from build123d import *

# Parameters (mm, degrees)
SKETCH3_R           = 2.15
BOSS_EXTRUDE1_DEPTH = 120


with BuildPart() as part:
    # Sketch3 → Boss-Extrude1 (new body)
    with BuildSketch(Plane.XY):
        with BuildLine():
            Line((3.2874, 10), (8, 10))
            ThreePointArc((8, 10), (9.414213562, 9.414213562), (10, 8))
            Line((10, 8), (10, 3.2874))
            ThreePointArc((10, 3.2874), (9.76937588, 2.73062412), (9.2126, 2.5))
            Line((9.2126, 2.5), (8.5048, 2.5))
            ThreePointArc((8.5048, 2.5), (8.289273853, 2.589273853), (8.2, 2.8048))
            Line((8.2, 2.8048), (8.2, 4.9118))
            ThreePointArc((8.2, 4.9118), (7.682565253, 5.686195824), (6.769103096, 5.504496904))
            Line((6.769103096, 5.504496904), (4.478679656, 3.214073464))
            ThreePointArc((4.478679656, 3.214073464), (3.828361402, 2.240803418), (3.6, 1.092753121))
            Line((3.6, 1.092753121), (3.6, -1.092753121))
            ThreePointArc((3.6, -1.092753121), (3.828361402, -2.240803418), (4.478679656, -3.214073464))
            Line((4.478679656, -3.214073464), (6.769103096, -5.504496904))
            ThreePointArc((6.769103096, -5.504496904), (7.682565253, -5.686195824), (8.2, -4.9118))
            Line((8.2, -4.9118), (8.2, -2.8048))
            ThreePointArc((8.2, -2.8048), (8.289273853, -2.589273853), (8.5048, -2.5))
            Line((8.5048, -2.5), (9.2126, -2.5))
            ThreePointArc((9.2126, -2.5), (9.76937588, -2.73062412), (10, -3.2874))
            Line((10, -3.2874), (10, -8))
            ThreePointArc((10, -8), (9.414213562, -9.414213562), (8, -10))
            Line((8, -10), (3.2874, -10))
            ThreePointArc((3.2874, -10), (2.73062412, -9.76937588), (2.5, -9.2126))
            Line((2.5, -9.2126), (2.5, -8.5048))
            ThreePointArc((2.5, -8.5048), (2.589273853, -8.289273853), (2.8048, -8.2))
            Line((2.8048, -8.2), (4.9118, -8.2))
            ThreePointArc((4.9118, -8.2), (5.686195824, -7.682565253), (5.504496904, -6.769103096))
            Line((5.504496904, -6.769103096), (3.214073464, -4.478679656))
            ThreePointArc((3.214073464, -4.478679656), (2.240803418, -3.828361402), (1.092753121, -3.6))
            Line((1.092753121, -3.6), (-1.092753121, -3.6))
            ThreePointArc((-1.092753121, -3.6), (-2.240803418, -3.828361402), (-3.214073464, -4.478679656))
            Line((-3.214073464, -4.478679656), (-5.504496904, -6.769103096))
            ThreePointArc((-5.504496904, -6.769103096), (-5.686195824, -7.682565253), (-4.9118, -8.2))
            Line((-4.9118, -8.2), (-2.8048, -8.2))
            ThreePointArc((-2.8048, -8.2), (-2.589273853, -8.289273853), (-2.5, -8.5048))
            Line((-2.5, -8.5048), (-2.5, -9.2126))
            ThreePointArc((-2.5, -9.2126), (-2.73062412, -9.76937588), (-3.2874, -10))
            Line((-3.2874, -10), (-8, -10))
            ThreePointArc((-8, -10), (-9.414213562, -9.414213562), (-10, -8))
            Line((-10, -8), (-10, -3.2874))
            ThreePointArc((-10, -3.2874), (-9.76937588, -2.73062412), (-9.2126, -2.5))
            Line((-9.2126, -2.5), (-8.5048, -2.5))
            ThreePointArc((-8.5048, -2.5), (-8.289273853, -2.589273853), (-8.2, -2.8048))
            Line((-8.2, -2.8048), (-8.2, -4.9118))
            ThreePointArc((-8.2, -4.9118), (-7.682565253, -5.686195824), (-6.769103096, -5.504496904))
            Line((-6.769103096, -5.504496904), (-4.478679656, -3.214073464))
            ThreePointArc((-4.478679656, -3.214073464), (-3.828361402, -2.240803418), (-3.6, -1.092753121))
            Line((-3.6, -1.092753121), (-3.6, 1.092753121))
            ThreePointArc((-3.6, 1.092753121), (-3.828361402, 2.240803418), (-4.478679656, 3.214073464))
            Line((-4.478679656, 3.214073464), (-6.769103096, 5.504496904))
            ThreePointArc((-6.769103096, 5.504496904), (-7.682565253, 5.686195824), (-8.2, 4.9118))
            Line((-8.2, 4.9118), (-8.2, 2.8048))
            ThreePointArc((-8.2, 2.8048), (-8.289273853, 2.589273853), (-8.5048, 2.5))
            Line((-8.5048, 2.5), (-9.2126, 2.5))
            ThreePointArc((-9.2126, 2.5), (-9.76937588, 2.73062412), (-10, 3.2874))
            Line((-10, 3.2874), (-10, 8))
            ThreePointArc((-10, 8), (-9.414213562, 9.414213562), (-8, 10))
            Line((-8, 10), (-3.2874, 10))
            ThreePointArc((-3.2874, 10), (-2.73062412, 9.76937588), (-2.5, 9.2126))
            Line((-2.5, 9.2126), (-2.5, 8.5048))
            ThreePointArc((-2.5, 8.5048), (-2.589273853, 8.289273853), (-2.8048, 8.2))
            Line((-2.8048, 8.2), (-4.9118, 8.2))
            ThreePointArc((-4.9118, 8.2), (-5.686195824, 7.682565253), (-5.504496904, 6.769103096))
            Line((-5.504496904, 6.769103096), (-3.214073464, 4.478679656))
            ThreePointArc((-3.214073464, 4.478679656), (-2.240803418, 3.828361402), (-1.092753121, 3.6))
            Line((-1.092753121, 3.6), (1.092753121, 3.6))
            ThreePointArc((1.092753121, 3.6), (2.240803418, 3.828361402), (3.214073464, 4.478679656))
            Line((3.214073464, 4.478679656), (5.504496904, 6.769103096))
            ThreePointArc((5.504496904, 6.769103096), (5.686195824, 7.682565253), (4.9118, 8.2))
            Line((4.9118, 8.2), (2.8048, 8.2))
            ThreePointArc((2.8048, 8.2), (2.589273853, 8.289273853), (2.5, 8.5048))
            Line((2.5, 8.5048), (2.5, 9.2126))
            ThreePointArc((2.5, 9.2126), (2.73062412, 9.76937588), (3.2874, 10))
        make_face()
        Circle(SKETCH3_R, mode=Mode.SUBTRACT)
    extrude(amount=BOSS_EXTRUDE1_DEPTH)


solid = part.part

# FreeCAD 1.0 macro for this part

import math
import FreeCAD as App
import Part
import Sketcher

doc = App.newDocument("Part")
params = doc.addObject("Spreadsheet::Sheet", "Params")
for row, (alias, value) in enumerate([
    ("sketch1_radius", "3 mm"),
    ("sketch1_radius2", "2 mm"),
    ("sketch1_diameter", "4.3 mm"),
    ("pad1_length", "120 mm"),
], start=1):
    params.set(f"A{row}", alias)
    params.set(f"B{row}", "=" + value)
    params.setAlias(f"B{row}", alias)

body = doc.addObject("PartDesign::Body", "Body")

sketch1 = doc.addObject("Sketcher::SketchObject", "Sketch")
body.addObject(sketch1)
sketch1.AttachmentSupport = (doc.XY_Plane, [""])
sketch1.MapMode = "FlatFace"
sketch1.addGeometry(Part.LineSegment(App.Vector(8, 10, 0), App.Vector(3.29, 10, 0)), False)
sketch1.addGeometry(Part.ArcOfCircle(Part.Circle(App.Vector(3.29, 9.21, 0), App.Vector(0, 0, 1), 0.79), math.radians(90), math.radians(180)), False)
sketch1.addGeometry(Part.LineSegment(App.Vector(2.5, 9.21, 0), App.Vector(2.5, 8.5, 0)), False)
sketch1.addGeometry(Part.ArcOfCircle(Part.Circle(App.Vector(2.8, 8.5, 0), App.Vector(0, 0, 1), 0.3), math.radians(180), math.radians(270)), False)
sketch1.addGeometry(Part.LineSegment(App.Vector(2.8, 8.2, 0), App.Vector(4.91, 8.2, 0)), False)
sketch1.addGeometry(Part.ArcOfCircle(Part.Circle(App.Vector(4.91, 7.36, 0), App.Vector(0, 0, 1), 0.84), math.radians(-45), math.radians(90)), False)
sketch1.addGeometry(Part.LineSegment(App.Vector(5.5, 6.77, 0), App.Vector(3.21, 4.48, 0)), False)
sketch1.addGeometry(Part.ArcOfCircle(Part.Circle(App.Vector(1.09, 6.6, 0), App.Vector(0, 0, 1), 3), math.radians(-90), math.radians(-45)), False)
sketch1.addGeometry(Part.LineSegment(App.Vector(1.09, 3.6, 0), App.Vector(-1.09, 3.6, 0)), False)
sketch1.addGeometry(Part.ArcOfCircle(Part.Circle(App.Vector(-1.09, 6.6, 0), App.Vector(0, 0, 1), 3), math.radians(-135), math.radians(-90)), False)
sketch1.addGeometry(Part.LineSegment(App.Vector(-3.21, 4.48, 0), App.Vector(-5.5, 6.77, 0)), False)
sketch1.addGeometry(Part.ArcOfCircle(Part.Circle(App.Vector(-4.91, 7.36, 0), App.Vector(0, 0, 1), 0.84), math.radians(90), math.radians(225)), False)
sketch1.addGeometry(Part.LineSegment(App.Vector(-4.91, 8.2, 0), App.Vector(-2.8, 8.2, 0)), False)
sketch1.addGeometry(Part.ArcOfCircle(Part.Circle(App.Vector(-2.8, 8.5, 0), App.Vector(0, 0, 1), 0.3), math.radians(-90), math.radians(0)), False)
sketch1.addGeometry(Part.LineSegment(App.Vector(-2.5, 8.5, 0), App.Vector(-2.5, 9.21, 0)), False)
sketch1.addGeometry(Part.ArcOfCircle(Part.Circle(App.Vector(-3.29, 9.21, 0), App.Vector(0, 0, 1), 0.79), math.radians(0), math.radians(90)), False)
sketch1.addGeometry(Part.LineSegment(App.Vector(-3.29, 10, 0), App.Vector(-8, 10, 0)), False)
sketch1.addGeometry(Part.ArcOfCircle(Part.Circle(App.Vector(-8, 8, 0), App.Vector(0, 0, 1), 2), math.radians(90), math.radians(180)), False)
sketch1.addGeometry(Part.LineSegment(App.Vector(-10, 8, 0), App.Vector(-10, 3.29, 0)), False)
sketch1.addGeometry(Part.ArcOfCircle(Part.Circle(App.Vector(-9.21, 3.29, 0), App.Vector(0, 0, 1), 0.79), math.radians(180), math.radians(270)), False)
sketch1.addGeometry(Part.LineSegment(App.Vector(-9.21, 2.5, 0), App.Vector(-8.5, 2.5, 0)), False)
sketch1.addGeometry(Part.ArcOfCircle(Part.Circle(App.Vector(-8.5, 2.8, 0), App.Vector(0, 0, 1), 0.3), math.radians(-90), math.radians(0)), False)
sketch1.addGeometry(Part.LineSegment(App.Vector(-8.2, 2.8, 0), App.Vector(-8.2, 4.91, 0)), False)
sketch1.addGeometry(Part.ArcOfCircle(Part.Circle(App.Vector(-7.36, 4.91, 0), App.Vector(0, 0, 1), 0.84), math.radians(45), math.radians(180)), False)
sketch1.addGeometry(Part.LineSegment(App.Vector(-6.77, 5.5, 0), App.Vector(-4.48, 3.21, 0)), False)
sketch1.addGeometry(Part.ArcOfCircle(Part.Circle(App.Vector(-6.6, 1.09, 0), App.Vector(0, 0, 1), 3), math.radians(0), math.radians(45)), False)
sketch1.addGeometry(Part.LineSegment(App.Vector(-3.6, 1.09, 0), App.Vector(-3.6, -1.09, 0)), False)
sketch1.addGeometry(Part.ArcOfCircle(Part.Circle(App.Vector(-6.6, -1.09, 0), App.Vector(0, 0, 1), 3), math.radians(-45), math.radians(0)), False)
sketch1.addGeometry(Part.LineSegment(App.Vector(-4.48, -3.21, 0), App.Vector(-6.77, -5.5, 0)), False)
sketch1.addGeometry(Part.ArcOfCircle(Part.Circle(App.Vector(-7.36, -4.91, 0), App.Vector(0, 0, 1), 0.84), math.radians(180), math.radians(315)), False)
sketch1.addGeometry(Part.LineSegment(App.Vector(-8.2, -4.91, 0), App.Vector(-8.2, -2.8, 0)), False)
sketch1.addGeometry(Part.ArcOfCircle(Part.Circle(App.Vector(-8.5, -2.8, 0), App.Vector(0, 0, 1), 0.3), math.radians(0), math.radians(90)), False)
sketch1.addGeometry(Part.LineSegment(App.Vector(-8.5, -2.5, 0), App.Vector(-9.21, -2.5, 0)), False)
sketch1.addGeometry(Part.ArcOfCircle(Part.Circle(App.Vector(-9.21, -3.29, 0), App.Vector(0, 0, 1), 0.79), math.radians(90), math.radians(180)), False)
sketch1.addGeometry(Part.LineSegment(App.Vector(-10, -3.29, 0), App.Vector(-10, -8, 0)), False)
sketch1.addGeometry(Part.ArcOfCircle(Part.Circle(App.Vector(-8, -8, 0), App.Vector(0, 0, 1), 2), math.radians(-180), math.radians(-90)), False)
sketch1.addGeometry(Part.LineSegment(App.Vector(-8, -10, 0), App.Vector(-3.29, -10, 0)), False)
sketch1.addGeometry(Part.ArcOfCircle(Part.Circle(App.Vector(-3.29, -9.21, 0), App.Vector(0, 0, 1), 0.79), math.radians(-90), math.radians(0)), False)
sketch1.addGeometry(Part.LineSegment(App.Vector(-2.5, -9.21, 0), App.Vector(-2.5, -8.5, 0)), False)
sketch1.addGeometry(Part.ArcOfCircle(Part.Circle(App.Vector(-2.8, -8.5, 0), App.Vector(0, 0, 1), 0.3), math.radians(0), math.radians(90)), False)
sketch1.addGeometry(Part.LineSegment(App.Vector(-2.8, -8.2, 0), App.Vector(-4.91, -8.2, 0)), False)
sketch1.addGeometry(Part.ArcOfCircle(Part.Circle(App.Vector(-4.91, -7.36, 0), App.Vector(0, 0, 1), 0.84), math.radians(135), math.radians(270)), False)
sketch1.addGeometry(Part.LineSegment(App.Vector(-5.5, -6.77, 0), App.Vector(-3.21, -4.48, 0)), False)
sketch1.addGeometry(Part.ArcOfCircle(Part.Circle(App.Vector(-1.09, -6.6, 0), App.Vector(0, 0, 1), 3), math.radians(90), math.radians(135)), False)
sketch1.addGeometry(Part.LineSegment(App.Vector(-1.09, -3.6, 0), App.Vector(1.09, -3.6, 0)), False)
sketch1.addGeometry(Part.ArcOfCircle(Part.Circle(App.Vector(1.09, -6.6, 0), App.Vector(0, 0, 1), 3), math.radians(45), math.radians(90)), False)
sketch1.addGeometry(Part.LineSegment(App.Vector(3.21, -4.48, 0), App.Vector(5.5, -6.77, 0)), False)
sketch1.addGeometry(Part.ArcOfCircle(Part.Circle(App.Vector(4.91, -7.36, 0), App.Vector(0, 0, 1), 0.84), math.radians(-90), math.radians(45)), False)
sketch1.addGeometry(Part.LineSegment(App.Vector(4.91, -8.2, 0), App.Vector(2.8, -8.2, 0)), False)
sketch1.addGeometry(Part.ArcOfCircle(Part.Circle(App.Vector(2.8, -8.5, 0), App.Vector(0, 0, 1), 0.3), math.radians(90), math.radians(180)), False)
sketch1.addGeometry(Part.LineSegment(App.Vector(2.5, -8.5, 0), App.Vector(2.5, -9.21, 0)), False)
sketch1.addGeometry(Part.ArcOfCircle(Part.Circle(App.Vector(3.29, -9.21, 0), App.Vector(0, 0, 1), 0.79), math.radians(180), math.radians(270)), False)
sketch1.addGeometry(Part.LineSegment(App.Vector(3.29, -10, 0), App.Vector(8, -10, 0)), False)
sketch1.addGeometry(Part.ArcOfCircle(Part.Circle(App.Vector(8, -8, 0), App.Vector(0, 0, 1), 2), math.radians(-90), math.radians(0)), False)
sketch1.addGeometry(Part.LineSegment(App.Vector(10, -8, 0), App.Vector(10, -3.29, 0)), False)
sketch1.addGeometry(Part.ArcOfCircle(Part.Circle(App.Vector(9.21, -3.29, 0), App.Vector(0, 0, 1), 0.79), math.radians(0), math.radians(90)), False)
sketch1.addGeometry(Part.LineSegment(App.Vector(9.21, -2.5, 0), App.Vector(8.5, -2.5, 0)), False)
sketch1.addGeometry(Part.ArcOfCircle(Part.Circle(App.Vector(8.5, -2.8, 0), App.Vector(0, 0, 1), 0.3), math.radians(90), math.radians(180)), False)
sketch1.addGeometry(Part.LineSegment(App.Vector(8.2, -2.8, 0), App.Vector(8.2, -4.91, 0)), False)
sketch1.addGeometry(Part.ArcOfCircle(Part.Circle(App.Vector(7.36, -4.91, 0), App.Vector(0, 0, 1), 0.84), math.radians(-135), math.radians(0)), False)
sketch1.addGeometry(Part.LineSegment(App.Vector(6.77, -5.5, 0), App.Vector(4.48, -3.21, 0)), False)
sketch1.addGeometry(Part.ArcOfCircle(Part.Circle(App.Vector(6.6, -1.09, 0), App.Vector(0, 0, 1), 3), math.radians(180), math.radians(225)), False)
sketch1.addGeometry(Part.LineSegment(App.Vector(3.6, -1.09, 0), App.Vector(3.6, 1.09, 0)), False)
sketch1.addGeometry(Part.ArcOfCircle(Part.Circle(App.Vector(6.6, 1.09, 0), App.Vector(0, 0, 1), 3), math.radians(135), math.radians(180)), False)
sketch1.addGeometry(Part.LineSegment(App.Vector(4.48, 3.21, 0), App.Vector(6.77, 5.5, 0)), False)
sketch1.addGeometry(Part.ArcOfCircle(Part.Circle(App.Vector(7.36, 4.91, 0), App.Vector(0, 0, 1), 0.84), math.radians(0), math.radians(135)), False)
sketch1.addGeometry(Part.LineSegment(App.Vector(8.2, 4.91, 0), App.Vector(8.2, 2.8, 0)), False)
sketch1.addGeometry(Part.ArcOfCircle(Part.Circle(App.Vector(8.5, 2.8, 0), App.Vector(0, 0, 1), 0.3), math.radians(180), math.radians(270)), False)
sketch1.addGeometry(Part.LineSegment(App.Vector(8.5, 2.5, 0), App.Vector(9.21, 2.5, 0)), False)
sketch1.addGeometry(Part.ArcOfCircle(Part.Circle(App.Vector(9.21, 3.29, 0), App.Vector(0, 0, 1), 0.79), math.radians(-90), math.radians(0)), False)
sketch1.addGeometry(Part.LineSegment(App.Vector(10, 3.29, 0), App.Vector(10, 8, 0)), False)
sketch1.addGeometry(Part.ArcOfCircle(Part.Circle(App.Vector(8, 8, 0), App.Vector(0, 0, 1), 2), math.radians(0), math.radians(90)), False)
sketch1.addGeometry(Part.Circle(App.Vector(0, 0, 0), App.Vector(0, 0, 1), 2.15), False)
sketch1.addConstraint(Sketcher.Constraint("Tangent", 0, 2, 1, 1))
sketch1.addConstraint(Sketcher.Constraint("Tangent", 1, 2, 2, 1))
sketch1.addConstraint(Sketcher.Constraint("Tangent", 2, 2, 3, 1))
sketch1.addConstraint(Sketcher.Constraint("Tangent", 3, 2, 4, 1))
sketch1.addConstraint(Sketcher.Constraint("Tangent", 4, 2, 5, 2))
sketch1.addConstraint(Sketcher.Constraint("Tangent", 5, 1, 6, 1))
sketch1.addConstraint(Sketcher.Constraint("Tangent", 6, 2, 7, 2))
sketch1.addConstraint(Sketcher.Constraint("Tangent", 7, 1, 8, 1))
sketch1.addConstraint(Sketcher.Constraint("Tangent", 8, 2, 9, 2))
sketch1.addConstraint(Sketcher.Constraint("Tangent", 9, 1, 10, 1))
sketch1.addConstraint(Sketcher.Constraint("Tangent", 10, 2, 11, 2))
sketch1.addConstraint(Sketcher.Constraint("Tangent", 11, 1, 12, 1))
sketch1.addConstraint(Sketcher.Constraint("Tangent", 12, 2, 13, 1))
sketch1.addConstraint(Sketcher.Constraint("Tangent", 13, 2, 14, 1))
sketch1.addConstraint(Sketcher.Constraint("Tangent", 14, 2, 15, 1))
sketch1.addConstraint(Sketcher.Constraint("Tangent", 15, 2, 16, 1))
sketch1.addConstraint(Sketcher.Constraint("Tangent", 16, 2, 17, 1))
sketch1.addConstraint(Sketcher.Constraint("Tangent", 17, 2, 18, 1))
sketch1.addConstraint(Sketcher.Constraint("Tangent", 18, 2, 19, 1))
sketch1.addConstraint(Sketcher.Constraint("Tangent", 19, 2, 20, 1))
sketch1.addConstraint(Sketcher.Constraint("Tangent", 20, 2, 21, 1))
sketch1.addConstraint(Sketcher.Constraint("Tangent", 21, 2, 22, 1))
sketch1.addConstraint(Sketcher.Constraint("Tangent", 22, 2, 23, 2))
sketch1.addConstraint(Sketcher.Constraint("Tangent", 23, 1, 24, 1))
sketch1.addConstraint(Sketcher.Constraint("Tangent", 24, 2, 25, 2))
sketch1.addConstraint(Sketcher.Constraint("Tangent", 25, 1, 26, 1))
sketch1.addConstraint(Sketcher.Constraint("Tangent", 26, 2, 27, 2))
sketch1.addConstraint(Sketcher.Constraint("Tangent", 27, 1, 28, 1))
sketch1.addConstraint(Sketcher.Constraint("Tangent", 28, 2, 29, 2))
sketch1.addConstraint(Sketcher.Constraint("Tangent", 29, 1, 30, 1))
sketch1.addConstraint(Sketcher.Constraint("Tangent", 30, 2, 31, 1))
sketch1.addConstraint(Sketcher.Constraint("Tangent", 31, 2, 32, 1))
sketch1.addConstraint(Sketcher.Constraint("Tangent", 32, 2, 33, 1))
sketch1.addConstraint(Sketcher.Constraint("Tangent", 33, 2, 34, 1))
sketch1.addConstraint(Sketcher.Constraint("Tangent", 34, 2, 35, 1))
sketch1.addConstraint(Sketcher.Constraint("Tangent", 35, 2, 36, 1))
sketch1.addConstraint(Sketcher.Constraint("Tangent", 36, 2, 37, 1))
sketch1.addConstraint(Sketcher.Constraint("Tangent", 37, 2, 38, 1))
sketch1.addConstraint(Sketcher.Constraint("Tangent", 38, 2, 39, 1))
sketch1.addConstraint(Sketcher.Constraint("Tangent", 39, 2, 40, 1))
sketch1.addConstraint(Sketcher.Constraint("Tangent", 40, 2, 41, 2))
sketch1.addConstraint(Sketcher.Constraint("Tangent", 41, 1, 42, 1))
sketch1.addConstraint(Sketcher.Constraint("Tangent", 42, 2, 43, 2))
sketch1.addConstraint(Sketcher.Constraint("Tangent", 43, 1, 44, 1))
sketch1.addConstraint(Sketcher.Constraint("Tangent", 44, 2, 45, 2))
sketch1.addConstraint(Sketcher.Constraint("Tangent", 45, 1, 46, 1))
sketch1.addConstraint(Sketcher.Constraint("Tangent", 46, 2, 47, 2))
sketch1.addConstraint(Sketcher.Constraint("Tangent", 47, 1, 48, 1))
sketch1.addConstraint(Sketcher.Constraint("Tangent", 48, 2, 49, 1))
sketch1.addConstraint(Sketcher.Constraint("Tangent", 49, 2, 50, 1))
sketch1.addConstraint(Sketcher.Constraint("Tangent", 50, 2, 51, 1))
sketch1.addConstraint(Sketcher.Constraint("Tangent", 51, 2, 52, 1))
sketch1.addConstraint(Sketcher.Constraint("Tangent", 52, 2, 53, 1))
sketch1.addConstraint(Sketcher.Constraint("Tangent", 53, 2, 54, 1))
sketch1.addConstraint(Sketcher.Constraint("Tangent", 54, 2, 55, 1))
sketch1.addConstraint(Sketcher.Constraint("Tangent", 55, 2, 56, 1))
sketch1.addConstraint(Sketcher.Constraint("Tangent", 56, 2, 57, 1))
sketch1.addConstraint(Sketcher.Constraint("Tangent", 57, 2, 58, 1))
sketch1.addConstraint(Sketcher.Constraint("Tangent", 58, 2, 59, 2))
sketch1.addConstraint(Sketcher.Constraint("Tangent", 59, 1, 60, 1))
sketch1.addConstraint(Sketcher.Constraint("Tangent", 60, 2, 61, 2))
sketch1.addConstraint(Sketcher.Constraint("Tangent", 61, 1, 62, 1))
sketch1.addConstraint(Sketcher.Constraint("Tangent", 62, 2, 63, 2))
sketch1.addConstraint(Sketcher.Constraint("Tangent", 63, 1, 64, 1))
sketch1.addConstraint(Sketcher.Constraint("Tangent", 64, 2, 65, 2))
sketch1.addConstraint(Sketcher.Constraint("Tangent", 65, 1, 66, 1))
sketch1.addConstraint(Sketcher.Constraint("Tangent", 66, 2, 67, 1))
sketch1.addConstraint(Sketcher.Constraint("Tangent", 67, 2, 68, 1))
sketch1.addConstraint(Sketcher.Constraint("Tangent", 68, 2, 69, 1))
sketch1.addConstraint(Sketcher.Constraint("Tangent", 69, 2, 70, 1))
sketch1.addConstraint(Sketcher.Constraint("Tangent", 70, 2, 71, 1))
sketch1.addConstraint(Sketcher.Constraint("Tangent", 71, 2, 0, 1))
sketch1.addConstraint(Sketcher.Constraint("Horizontal", 0))
sketch1.addConstraint(Sketcher.Constraint("Vertical", 2))
sketch1.addConstraint(Sketcher.Constraint("Horizontal", 4))
sketch1.addConstraint(Sketcher.Constraint("Horizontal", 8))
sketch1.addConstraint(Sketcher.Constraint("Horizontal", 12))
sketch1.addConstraint(Sketcher.Constraint("Vertical", 14))
sketch1.addConstraint(Sketcher.Constraint("Horizontal", 16))
sketch1.addConstraint(Sketcher.Constraint("Vertical", 18))
sketch1.addConstraint(Sketcher.Constraint("Horizontal", 20))
sketch1.addConstraint(Sketcher.Constraint("Vertical", 22))
sketch1.addConstraint(Sketcher.Constraint("Vertical", 26))
sketch1.addConstraint(Sketcher.Constraint("Vertical", 30))
sketch1.addConstraint(Sketcher.Constraint("Horizontal", 32))
sketch1.addConstraint(Sketcher.Constraint("Vertical", 34))
sketch1.addConstraint(Sketcher.Constraint("Horizontal", 36))
sketch1.addConstraint(Sketcher.Constraint("Vertical", 38))
sketch1.addConstraint(Sketcher.Constraint("Horizontal", 40))
sketch1.addConstraint(Sketcher.Constraint("Horizontal", 44))
sketch1.addConstraint(Sketcher.Constraint("Horizontal", 48))
sketch1.addConstraint(Sketcher.Constraint("Vertical", 50))
sketch1.addConstraint(Sketcher.Constraint("Horizontal", 52))
sketch1.addConstraint(Sketcher.Constraint("Vertical", 54))
sketch1.addConstraint(Sketcher.Constraint("Horizontal", 56))
sketch1.addConstraint(Sketcher.Constraint("Vertical", 58))
sketch1.addConstraint(Sketcher.Constraint("Vertical", 62))
sketch1.addConstraint(Sketcher.Constraint("Vertical", 66))
sketch1.addConstraint(Sketcher.Constraint("Horizontal", 68))
sketch1.addConstraint(Sketcher.Constraint("Vertical", 70))
sketch1.addConstraint(Sketcher.Constraint("Coincident", 72, 3, -1, 1))
sketch1.addConstraint(Sketcher.Constraint("Equal", 7, 9))
sketch1.addConstraint(Sketcher.Constraint("Equal", 5, 11))
sketch1.addConstraint(Sketcher.Constraint("Equal", 3, 13))
sketch1.addConstraint(Sketcher.Constraint("Equal", 1, 15))
sketch1.addConstraint(Sketcher.Constraint("Equal", 15, 19))
sketch1.addConstraint(Sketcher.Constraint("Equal", 13, 21))
sketch1.addConstraint(Sketcher.Constraint("Equal", 11, 23))
sketch1.addConstraint(Sketcher.Constraint("Equal", 9, 25))
sketch1.addConstraint(Sketcher.Constraint("Equal", 25, 27))
sketch1.addConstraint(Sketcher.Constraint("Equal", 23, 29))
sketch1.addConstraint(Sketcher.Constraint("Equal", 21, 31))
sketch1.addConstraint(Sketcher.Constraint("Equal", 19, 33))
sketch1.addConstraint(Sketcher.Constraint("Equal", 17, 35))
sketch1.addConstraint(Sketcher.Constraint("Equal", 33, 37))
sketch1.addConstraint(Sketcher.Constraint("Equal", 31, 39))
sketch1.addConstraint(Sketcher.Constraint("Equal", 29, 41))
sketch1.addConstraint(Sketcher.Constraint("Equal", 27, 43))
sketch1.addConstraint(Sketcher.Constraint("Equal", 43, 45))
sketch1.addConstraint(Sketcher.Constraint("Equal", 41, 47))
sketch1.addConstraint(Sketcher.Constraint("Equal", 39, 49))
sketch1.addConstraint(Sketcher.Constraint("Equal", 37, 51))
sketch1.addConstraint(Sketcher.Constraint("Equal", 35, 53))
sketch1.addConstraint(Sketcher.Constraint("Equal", 51, 55))
sketch1.addConstraint(Sketcher.Constraint("Equal", 49, 57))
sketch1.addConstraint(Sketcher.Constraint("Equal", 47, 59))
sketch1.addConstraint(Sketcher.Constraint("Equal", 45, 61))
sketch1.addConstraint(Sketcher.Constraint("Equal", 61, 63))
sketch1.addConstraint(Sketcher.Constraint("Equal", 59, 65))
sketch1.addConstraint(Sketcher.Constraint("Equal", 57, 67))
sketch1.addConstraint(Sketcher.Constraint("Equal", 55, 69))
sketch1.addConstraint(Sketcher.Constraint("Equal", 53, 71))
sketch1.addConstraint(Sketcher.Constraint("Symmetric", 1, 3, 37, 3, -1, 1))
sketch1.addConstraint(Sketcher.Constraint("Symmetric", 5, 3, 41, 3, -1, 1))
sketch1.addConstraint(Sketcher.Constraint("Symmetric", 7, 3, 43, 3, -1, 1))
sketch1.addConstraint(Sketcher.Constraint("Symmetric", 11, 3, 47, 3, -1, 1))
sketch1.addConstraint(Sketcher.Constraint("Symmetric", 15, 3, 51, 3, -1, 1))
sketch1.addConstraint(Sketcher.Constraint("Symmetric", 19, 3, 55, 3, -1, 1))
sketch1.addConstraint(Sketcher.Constraint("Symmetric", 23, 3, 59, 3, -1, 1))
sketch1.addConstraint(Sketcher.Constraint("Symmetric", 25, 3, 61, 3, -1, 1))
sketch1.addConstraint(Sketcher.Constraint("Symmetric", 29, 3, 65, 3, -1, 1))
sketch1.addConstraint(Sketcher.Constraint("Symmetric", 33, 3, 69, 3, -1, 1))
sketch1.addConstraint(Sketcher.Constraint("Symmetric", 5, 3, 11, 3, -2))
sketch1.addConstraint(Sketcher.Constraint("Symmetric", 1, 3, 15, 3, -2))
sketch1.addConstraint(Sketcher.Constraint("Symmetric", 33, 3, 55, 3, -2))
sketch1.addConstraint(Sketcher.Constraint("Symmetric", 29, 3, 59, 3, -2))
sketch1.addConstraint(Sketcher.Constraint("Perpendicular", 6, 10))
sketch1.addConstraint(Sketcher.Constraint("Parallel", 10, 24))
sketch1.addConstraint(Sketcher.Constraint("Perpendicular", 24, 28))
sketch1.addConstraint(Sketcher.Constraint("Perpendicular", 42, 46))
sketch1.addConstraint(Sketcher.Constraint("Perpendicular", 60, 64))
sketch1.addConstraint(Sketcher.Constraint("Horizontal", 27, 3, 61, 3))
sketch1.addConstraint(Sketcher.Constraint("Equal", 68, 2))
sketch1.addConstraint(Sketcher.Constraint("Equal", 52, 18))
sketch1.addConstraint(Sketcher.Constraint("Equal", 48, 22))
sketch1.addConstraint(Sketcher.Constraint("Equal", 44, 26))
sketch1.addConstraint(Sketcher.Constraint("Equal", 10, 24))
sketch1.addConstraint(Sketcher.Constraint("Radius", 7, 3.0))
sketch1.addConstraint(Sketcher.Constraint("Radius", 17, 2.0))
sketch1.addConstraint(Sketcher.Constraint("Diameter", 72, 4.3))
sketch1.addConstraint(Sketcher.Constraint("DistanceX", 17, 3, -1, 1, 8.0))
sketch1.addConstraint(Sketcher.Constraint("DistanceY", -1, 1, 7, 3, 6.6))
sketch1.addConstraint(Sketcher.Constraint("DistanceX", -1, 1, 1, 2, 2.5))
sketch1.addConstraint(Sketcher.Constraint("DistanceY", -1, 1, 3, 2, 8.2))
sketch1.addConstraint(Sketcher.Constraint("Radius", 1, 0.7874))
sketch1.addConstraint(Sketcher.Constraint("Radius", 3, 0.3048))
sketch1.addConstraint(Sketcher.Constraint("Radius", 5, 0.8382))
sketch1.addConstraint(Sketcher.Constraint("DistanceX", 4, 1, 4, 2, 2.107))
sketch1.setExpression("Constraints[157]", "Params.sketch1_radius")
sketch1.setExpression("Constraints[158]", "Params.sketch1_radius2")
sketch1.setExpression("Constraints[159]", "Params.sketch1_diameter")
pad1 = doc.addObject("PartDesign::Pad", "Pad")
body.addObject(pad1)
pad1.Profile = sketch1
pad1.setExpression("Length", "Params.pad1_length")

doc.recompute()
